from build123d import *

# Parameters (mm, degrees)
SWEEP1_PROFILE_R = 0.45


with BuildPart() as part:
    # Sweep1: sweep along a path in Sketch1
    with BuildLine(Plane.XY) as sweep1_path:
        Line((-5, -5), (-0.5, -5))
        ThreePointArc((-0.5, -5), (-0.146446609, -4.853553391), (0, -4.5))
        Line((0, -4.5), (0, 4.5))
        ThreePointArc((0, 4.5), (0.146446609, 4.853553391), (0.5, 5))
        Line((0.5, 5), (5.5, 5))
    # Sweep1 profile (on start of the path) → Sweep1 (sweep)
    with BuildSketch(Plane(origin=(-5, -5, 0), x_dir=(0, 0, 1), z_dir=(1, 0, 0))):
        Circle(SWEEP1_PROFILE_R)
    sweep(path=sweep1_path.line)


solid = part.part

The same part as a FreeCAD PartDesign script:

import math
import FreeCAD as App
import Part
import Sketcher
from FreeCAD import Vector

doc = App.newDocument("Part")
body = doc.addObject("PartDesign::Body", "Body")

sketch1 = body.newObject("Sketcher::SketchObject", "Sketch")
sketch1.AttachmentSupport = (doc.getObject("YZ_Plane"), [""])
sketch1.MapMode = "FlatFace"
sketch1.AttachmentOffset = App.Placement(Vector(0, 0, -5), App.Rotation())
sketch1.addGeometry(Part.Circle(Vector(-5, 0, 0), Vector(0, 0, 1), 0.45), False)
sketch1.addConstraint([
    Sketcher.Constraint("PointOnObject", 0, 3, -1),
    Sketcher.Constraint("Diameter", 0, 0.9),
    Sketcher.Constraint("DistanceX", 0, 3, -1, 1, 5.0),
])

sketch2 = body.newObject("Sketcher::SketchObject", "Sketch001")
sketch2.AttachmentSupport = (doc.getObject("XY_Plane"), [""])
sketch2.MapMode = "FlatFace"
sketch2.addGeometry([
    Part.LineSegment(Vector(-5, -5, 0), Vector(-0.5, -5, 0)),
    Part.ArcOfCircle(Part.Circle(Vector(-0.5, -4.5, 0), Vector(0, 0, 1), 0.5), math.radians(-90), math.radians(0)),
    Part.LineSegment(Vector(0, -4.5, 0), Vector(0, 4.5, 0)),
    Part.ArcOfCircle(Part.Circle(Vector(0.5, 4.5, 0), Vector(0, 0, 1), 0.5), math.radians(90), math.radians(180)),
    Part.LineSegment(Vector(0.5, 5, 0), Vector(5.5, 5, 0)),
], False)
sketch2.addConstraint([
    Sketcher.Constraint("Tangent", 0, 2, 1, 1),
    Sketcher.Constraint("Tangent", 1, 2, 2, 1),
    Sketcher.Constraint("Tangent", 2, 2, 3, 2),
    Sketcher.Constraint("Tangent", 3, 1, 4, 1),
    Sketcher.Constraint("Horizontal", 0),
    Sketcher.Constraint("Vertical", 2),
    Sketcher.Constraint("Horizontal", 4),
    Sketcher.Constraint("Equal", 1, 3),
    Sketcher.Constraint("Symmetric", 1, 3, 3, 3, -1, 1),
    Sketcher.Constraint("Radius", 1, 0.5),
    Sketcher.Constraint("DistanceX", 4, 1, 4, 2, 5.0),
    Sketcher.Constraint("DistanceY", 2, 1, 2, 2, 9.0),
    Sketcher.Constraint("DistanceX", 0, 1, 0, 2, 4.5),
])
doc.recompute()

additivepipe = body.newObject("PartDesign::AdditivePipe", "AdditivePipe")
additivepipe.Profile = sketch1
additivepipe.Spine = (sketch2, ["Edge1", "Edge2", "Edge3", "Edge4", "Edge5"])

doc.recompute()
